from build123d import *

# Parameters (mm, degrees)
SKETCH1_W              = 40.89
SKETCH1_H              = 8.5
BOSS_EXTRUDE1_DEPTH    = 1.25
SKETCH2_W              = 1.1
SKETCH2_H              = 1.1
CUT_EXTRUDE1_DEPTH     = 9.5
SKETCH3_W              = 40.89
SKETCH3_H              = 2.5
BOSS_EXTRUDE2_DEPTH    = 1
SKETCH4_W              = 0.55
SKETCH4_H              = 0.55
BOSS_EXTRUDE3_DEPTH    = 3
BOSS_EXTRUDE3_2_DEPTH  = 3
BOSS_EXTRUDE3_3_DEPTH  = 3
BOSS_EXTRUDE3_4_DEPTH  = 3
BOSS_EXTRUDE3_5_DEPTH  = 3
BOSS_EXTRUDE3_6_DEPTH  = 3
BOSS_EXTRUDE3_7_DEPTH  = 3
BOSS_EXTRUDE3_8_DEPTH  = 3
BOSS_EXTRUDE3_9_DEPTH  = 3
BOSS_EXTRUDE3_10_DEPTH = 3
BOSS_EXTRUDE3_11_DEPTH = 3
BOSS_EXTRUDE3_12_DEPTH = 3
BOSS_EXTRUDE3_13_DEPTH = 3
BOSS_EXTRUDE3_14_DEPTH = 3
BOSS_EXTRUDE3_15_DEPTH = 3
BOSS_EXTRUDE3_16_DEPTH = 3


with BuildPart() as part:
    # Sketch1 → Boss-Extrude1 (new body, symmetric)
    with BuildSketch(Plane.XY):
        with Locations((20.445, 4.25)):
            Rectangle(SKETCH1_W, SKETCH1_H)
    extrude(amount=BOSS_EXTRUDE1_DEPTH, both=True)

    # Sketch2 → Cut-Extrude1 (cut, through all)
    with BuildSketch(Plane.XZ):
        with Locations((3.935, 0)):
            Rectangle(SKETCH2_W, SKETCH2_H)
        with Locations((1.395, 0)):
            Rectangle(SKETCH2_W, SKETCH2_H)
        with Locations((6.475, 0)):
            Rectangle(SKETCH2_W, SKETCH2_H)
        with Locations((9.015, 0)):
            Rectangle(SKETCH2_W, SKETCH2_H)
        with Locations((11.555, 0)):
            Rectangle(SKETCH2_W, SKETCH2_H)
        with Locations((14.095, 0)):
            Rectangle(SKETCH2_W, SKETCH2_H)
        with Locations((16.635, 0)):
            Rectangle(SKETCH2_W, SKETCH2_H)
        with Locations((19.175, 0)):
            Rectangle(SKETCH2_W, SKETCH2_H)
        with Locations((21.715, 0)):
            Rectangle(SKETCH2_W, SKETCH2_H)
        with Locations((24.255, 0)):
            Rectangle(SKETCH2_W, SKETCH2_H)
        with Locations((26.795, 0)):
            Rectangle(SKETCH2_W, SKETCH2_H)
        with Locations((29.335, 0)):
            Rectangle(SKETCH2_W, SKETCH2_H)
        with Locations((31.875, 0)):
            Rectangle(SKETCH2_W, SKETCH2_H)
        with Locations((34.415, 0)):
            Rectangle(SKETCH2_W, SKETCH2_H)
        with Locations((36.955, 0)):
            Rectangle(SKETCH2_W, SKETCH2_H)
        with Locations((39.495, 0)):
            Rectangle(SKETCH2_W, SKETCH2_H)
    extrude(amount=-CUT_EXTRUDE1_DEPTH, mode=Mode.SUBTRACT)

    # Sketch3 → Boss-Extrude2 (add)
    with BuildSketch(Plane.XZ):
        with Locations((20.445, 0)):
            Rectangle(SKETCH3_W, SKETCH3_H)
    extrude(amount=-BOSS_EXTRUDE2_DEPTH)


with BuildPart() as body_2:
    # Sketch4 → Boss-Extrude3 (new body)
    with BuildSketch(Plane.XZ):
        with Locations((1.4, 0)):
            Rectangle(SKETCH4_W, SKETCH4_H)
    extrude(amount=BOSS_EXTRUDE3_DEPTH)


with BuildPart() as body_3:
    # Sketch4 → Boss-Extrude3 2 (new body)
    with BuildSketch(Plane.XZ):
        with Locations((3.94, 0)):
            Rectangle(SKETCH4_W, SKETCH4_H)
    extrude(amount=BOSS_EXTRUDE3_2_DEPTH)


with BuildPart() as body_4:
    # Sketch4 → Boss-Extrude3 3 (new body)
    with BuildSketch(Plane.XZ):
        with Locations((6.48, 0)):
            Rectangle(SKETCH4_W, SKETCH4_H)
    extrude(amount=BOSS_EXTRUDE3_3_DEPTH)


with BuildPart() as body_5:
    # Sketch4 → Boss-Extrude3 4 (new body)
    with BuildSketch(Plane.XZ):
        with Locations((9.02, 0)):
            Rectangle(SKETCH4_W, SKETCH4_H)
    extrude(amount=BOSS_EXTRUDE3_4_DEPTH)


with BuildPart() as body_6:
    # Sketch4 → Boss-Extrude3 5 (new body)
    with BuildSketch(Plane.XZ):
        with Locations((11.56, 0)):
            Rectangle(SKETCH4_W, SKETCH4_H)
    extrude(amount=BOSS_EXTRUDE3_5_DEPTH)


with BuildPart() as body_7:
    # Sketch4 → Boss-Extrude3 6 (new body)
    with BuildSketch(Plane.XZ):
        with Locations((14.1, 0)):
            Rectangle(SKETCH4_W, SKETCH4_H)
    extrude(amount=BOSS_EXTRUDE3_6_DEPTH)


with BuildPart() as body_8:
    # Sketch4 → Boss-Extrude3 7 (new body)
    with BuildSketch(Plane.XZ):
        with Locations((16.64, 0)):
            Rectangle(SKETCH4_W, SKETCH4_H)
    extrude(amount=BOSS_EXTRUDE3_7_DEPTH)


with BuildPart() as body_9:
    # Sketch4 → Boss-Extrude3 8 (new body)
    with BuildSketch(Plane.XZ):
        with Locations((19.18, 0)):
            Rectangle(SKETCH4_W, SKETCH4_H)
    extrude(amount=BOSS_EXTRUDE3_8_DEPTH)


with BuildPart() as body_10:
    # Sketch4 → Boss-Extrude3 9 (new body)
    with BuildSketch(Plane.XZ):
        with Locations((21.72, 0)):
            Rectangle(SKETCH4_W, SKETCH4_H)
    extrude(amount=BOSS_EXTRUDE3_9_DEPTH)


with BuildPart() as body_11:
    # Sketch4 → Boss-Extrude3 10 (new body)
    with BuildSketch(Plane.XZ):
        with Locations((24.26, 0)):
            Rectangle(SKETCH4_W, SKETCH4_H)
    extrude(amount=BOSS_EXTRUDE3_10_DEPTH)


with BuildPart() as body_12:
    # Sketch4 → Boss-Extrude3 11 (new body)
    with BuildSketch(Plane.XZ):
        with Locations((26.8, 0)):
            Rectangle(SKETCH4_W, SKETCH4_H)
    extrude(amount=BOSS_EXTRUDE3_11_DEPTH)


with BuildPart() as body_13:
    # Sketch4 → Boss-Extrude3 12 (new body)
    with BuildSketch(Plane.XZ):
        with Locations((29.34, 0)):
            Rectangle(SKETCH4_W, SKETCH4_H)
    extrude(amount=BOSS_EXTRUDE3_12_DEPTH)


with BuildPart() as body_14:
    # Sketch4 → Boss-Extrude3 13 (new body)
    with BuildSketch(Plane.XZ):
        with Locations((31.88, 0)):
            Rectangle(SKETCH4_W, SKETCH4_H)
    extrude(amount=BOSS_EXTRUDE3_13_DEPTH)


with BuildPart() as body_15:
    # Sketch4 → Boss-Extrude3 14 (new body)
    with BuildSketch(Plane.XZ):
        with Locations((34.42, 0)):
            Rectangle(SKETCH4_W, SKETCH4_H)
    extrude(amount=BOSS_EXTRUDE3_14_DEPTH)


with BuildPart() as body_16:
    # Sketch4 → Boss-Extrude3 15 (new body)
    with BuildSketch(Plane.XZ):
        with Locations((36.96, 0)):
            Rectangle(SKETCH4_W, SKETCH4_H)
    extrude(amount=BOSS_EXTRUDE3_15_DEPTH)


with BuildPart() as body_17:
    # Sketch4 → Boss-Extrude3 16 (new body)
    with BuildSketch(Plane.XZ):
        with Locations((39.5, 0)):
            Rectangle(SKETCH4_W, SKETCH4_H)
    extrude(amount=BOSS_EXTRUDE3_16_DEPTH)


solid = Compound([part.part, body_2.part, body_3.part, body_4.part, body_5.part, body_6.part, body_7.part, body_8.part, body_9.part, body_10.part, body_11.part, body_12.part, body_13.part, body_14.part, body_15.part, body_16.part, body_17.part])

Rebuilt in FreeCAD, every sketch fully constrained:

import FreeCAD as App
import Part
import Sketcher


def add_polygon(sketch, points):
    """Adds a closed chain of lines whose ends are joined by coincident constraints."""
    first, n = sketch.GeometryCount, len(points)
    for a, b in zip(points, points[1:] + points[:1]):
        sketch.addGeometry(Part.LineSegment(App.Vector(*a, 0), App.Vector(*b, 0)), False)
    for i in range(n):
        sketch.addConstraint(Sketcher.Constraint("Coincident", first + i, 2, first + (i + 1) % n, 1))

doc = App.newDocument("Part")
body = doc.addObject("PartDesign::Body", "Body")

# Sketch on XY plane
sketch1 = doc.addObject("Sketcher::SketchObject", "Sketch")
body.addObject(sketch1)
sketch1.AttachmentSupport = (doc.XY_Plane, [""])
sketch1.MapMode = "FlatFace"
add_polygon(sketch1, [(0, 8), (0, 0), (41, 0), (41, 8)])  # lines 0-3
sketch1.addConstraint(Sketcher.Constraint("Vertical", 0))
sketch1.addConstraint(Sketcher.Constraint("Horizontal", 1))
sketch1.addConstraint(Sketcher.Constraint("Vertical", 2))
sketch1.addConstraint(Sketcher.Constraint("Horizontal", 3))
sketch1.addConstraint(Sketcher.Constraint("Coincident", 0, 2, -1, 1))
sketch1.addConstraint(Sketcher.Constraint("DistanceY", 0, 2, 0, 1, 8.5))
sketch1.addConstraint(Sketcher.Constraint("DistanceX", 1, 1, 1, 2, 40.89))
pad1 = doc.addObject("PartDesign::Pad", "Pad")
body.addObject(pad1)
pad1.Profile = sketch1
pad1.Length = 2.5
pad1.Midplane = True

# Sketch on XZ plane
sketch2 = doc.addObject("Sketcher::SketchObject", "Sketch001")
body.addObject(sketch2)
sketch2.AttachmentSupport = (doc.XZ_Plane, [""])
sketch2.MapMode = "FlatFace"
add_polygon(sketch2, [(3.4, 0.6), (3.4, -0.6), (4.5, -0.6), (4.5, 0.6)])  # lines 0-3
add_polygon(sketch2, [(0.8, 0.6), (0.8, -0.6), (1.9, -0.6), (1.9, 0.6)])  # lines 4-7
add_polygon(sketch2, [(5.9, 0.6), (5.9, -0.6), (7, -0.6), (7, 0.6)])  # lines 8-11
add_polygon(sketch2, [(8.5, 0.6), (8.5, -0.6), (9.6, -0.6), (9.6, 0.6)])  # lines 12-15
add_polygon(sketch2, [(11, 0.6), (11, -0.6), (12.1, -0.6), (12.1, 0.6)])  # lines 16-19
add_polygon(sketch2, [(13.5, 0.6), (13.5, -0.6), (14.6, -0.6), (14.6, 0.6)])  # lines 20-23
add_polygon(sketch2, [(16.1, 0.6), (16.1, -0.6), (17.2, -0.6), (17.2, 0.6)])  # lines 24-27
add_polygon(sketch2, [(18.6, 0.6), (18.6, -0.6), (19.7, -0.6), (19.7, 0.6)])  # lines 28-31
add_polygon(sketch2, [(21.2, 0.6), (21.2, -0.6), (22.3, -0.6), (22.3, 0.6)])  # lines 32-35
add_polygon(sketch2, [(23.7, 0.6), (23.7, -0.6), (24.8, -0.6), (24.8, 0.6)])  # lines 36-39
add_polygon(sketch2, [(26.2, 0.6), (26.2, -0.6), (27.3, -0.6), (27.3, 0.6)])  # lines 40-43
add_polygon(sketch2, [(28.8, 0.6), (28.8, -0.6), (29.9, -0.6), (29.9, 0.6)])  # lines 44-47
add_polygon(sketch2, [(31.3, 0.6), (31.3, -0.6), (32.4, -0.6), (32.4, 0.6)])  # lines 48-51
add_polygon(sketch2, [(33.9, 0.6), (33.9, -0.6), (35, -0.6), (35, 0.6)])  # lines 52-55
add_polygon(sketch2, [(36.4, 0.6), (36.4, -0.6), (37.5, -0.6), (37.5, 0.6)])  # lines 56-59
add_polygon(sketch2, [(38.9, 0.6), (38.9, -0.6), (40, -0.6), (40, 0.6)])  # lines 60-63
sketch2.addConstraint(Sketcher.Constraint("Vertical", 0))
sketch2.addConstraint(Sketcher.Constraint("Horizontal", 1))
sketch2.addConstraint(Sketcher.Constraint("Vertical", 2))
sketch2.addConstraint(Sketcher.Constraint("Horizontal", 3))
sketch2.addConstraint(Sketcher.Constraint("Vertical", 4))
sketch2.addConstraint(Sketcher.Constraint("Horizontal", 5))
sketch2.addConstraint(Sketcher.Constraint("Vertical", 6))
sketch2.addConstraint(Sketcher.Constraint("Horizontal", 7))
sketch2.addConstraint(Sketcher.Constraint("Vertical", 8))
sketch2.addConstraint(Sketcher.Constraint("Horizontal", 9))
sketch2.addConstraint(Sketcher.Constraint("Vertical", 10))
sketch2.addConstraint(Sketcher.Constraint("Horizontal", 11))
sketch2.addConstraint(Sketcher.Constraint("Vertical", 12))
sketch2.addConstraint(Sketcher.Constraint("Horizontal", 13))
sketch2.addConstraint(Sketcher.Constraint("Vertical", 14))
sketch2.addConstraint(Sketcher.Constraint("Horizontal", 15))
sketch2.addConstraint(Sketcher.Constraint("Vertical", 16))
sketch2.addConstraint(Sketcher.Constraint("Horizontal", 17))
sketch2.addConstraint(Sketcher.Constraint("Vertical", 18))
sketch2.addConstraint(Sketcher.Constraint("Horizontal", 19))
sketch2.addConstraint(Sketcher.Constraint("Vertical", 20))
sketch2.addConstraint(Sketcher.Constraint("Horizontal", 21))
sketch2.addConstraint(Sketcher.Constraint("Vertical", 22))
sketch2.addConstraint(Sketcher.Constraint("Horizontal", 23))
sketch2.addConstraint(Sketcher.Constraint("Vertical", 24))
sketch2.addConstraint(Sketcher.Constraint("Horizontal", 25))
sketch2.addConstraint(Sketcher.Constraint("Vertical", 26))
sketch2.addConstraint(Sketcher.Constraint("Horizontal", 27))
sketch2.addConstraint(Sketcher.Constraint("Vertical", 28))
sketch2.addConstraint(Sketcher.Constraint("Horizontal", 29))
sketch2.addConstraint(Sketcher.Constraint("Vertical", 30))
sketch2.addConstraint(Sketcher.Constraint("Horizontal", 31))
sketch2.addConstraint(Sketcher.Constraint("Vertical", 32))
sketch2.addConstraint(Sketcher.Constraint("Horizontal", 33))
sketch2.addConstraint(Sketcher.Constraint("Vertical", 34))
sketch2.addConstraint(Sketcher.Constraint("Horizontal", 35))
sketch2.addConstraint(Sketcher.Constraint("Vertical", 36))
sketch2.addConstraint(Sketcher.Constraint("Horizontal", 37))
sketch2.addConstraint(Sketcher.Constraint("Vertical", 38))
sketch2.addConstraint(Sketcher.Constraint("Horizontal", 39))
sketch2.addConstraint(Sketcher.Constraint("Vertical", 40))
sketch2.addConstraint(Sketcher.Constraint("Horizontal", 41))
sketch2.addConstraint(Sketcher.Constraint("Vertical", 42))
sketch2.addConstraint(Sketcher.Constraint("Horizontal", 43))
sketch2.addConstraint(Sketcher.Constraint("Vertical", 44))
sketch2.addConstraint(Sketcher.Constraint("Horizontal", 45))
sketch2.addConstraint(Sketcher.Constraint("Vertical", 46))
sketch2.addConstraint(Sketcher.Constraint("Horizontal", 47))
sketch2.addConstraint(Sketcher.Constraint("Vertical", 48))
sketch2.addConstraint(Sketcher.Constraint("Horizontal", 49))
sketch2.addConstraint(Sketcher.Constraint("Vertical", 50))
sketch2.addConstraint(Sketcher.Constraint("Horizontal", 51))
sketch2.addConstraint(Sketcher.Constraint("Vertical", 52))
sketch2.addConstraint(Sketcher.Constraint("Horizontal", 53))
sketch2.addConstraint(Sketcher.Constraint("Vertical", 54))
sketch2.addConstraint(Sketcher.Constraint("Horizontal", 55))
sketch2.addConstraint(Sketcher.Constraint("Vertical", 56))
sketch2.addConstraint(Sketcher.Constraint("Horizontal", 57))
sketch2.addConstraint(Sketcher.Constraint("Vertical", 58))
sketch2.addConstraint(Sketcher.Constraint("Horizontal", 59))
sketch2.addConstraint(Sketcher.Constraint("Vertical", 60))
sketch2.addConstraint(Sketcher.Constraint("Horizontal", 61))
sketch2.addConstraint(Sketcher.Constraint("Vertical", 62))
sketch2.addConstraint(Sketcher.Constraint("Horizontal", 63))
sketch2.addConstraint(Sketcher.Constraint("Horizontal", 1, 2, 4, 2))
sketch2.addConstraint(Sketcher.Constraint("Horizontal", 3, 2, 6, 2))
sketch2.addConstraint(Sketcher.Constraint("Horizontal", 5, 2, 8, 2))
sketch2.addConstraint(Sketcher.Constraint("Horizontal", 7, 2, 10, 2))
sketch2.addConstraint(Sketcher.Constraint("Horizontal", 9, 2, 12, 2))
sketch2.addConstraint(Sketcher.Constraint("Horizontal", 11, 2, 14, 2))
sketch2.addConstraint(Sketcher.Constraint("Horizontal", 13, 2, 16, 2))
sketch2.addConstraint(Sketcher.Constraint("Horizontal", 15, 2, 18, 2))
sketch2.addConstraint(Sketcher.Constraint("Horizontal", 17, 2, 20, 2))
sketch2.addConstraint(Sketcher.Constraint("Horizontal", 19, 2, 22, 2))
sketch2.addConstraint(Sketcher.Constraint("Horizontal", 21, 2, 24, 2))
sketch2.addConstraint(Sketcher.Constraint("Horizontal", 23, 2, 26, 2))
sketch2.addConstraint(Sketcher.Constraint("Horizontal", 25, 2, 28, 2))
sketch2.addConstraint(Sketcher.Constraint("Horizontal", 27, 2, 30, 2))
sketch2.addConstraint(Sketcher.Constraint("Horizontal", 29, 2, 32, 2))
sketch2.addConstraint(Sketcher.Constraint("Horizontal", 31, 2, 34, 2))
sketch2.addConstraint(Sketcher.Constraint("Horizontal", 33, 2, 36, 2))
sketch2.addConstraint(Sketcher.Constraint("Horizontal", 35, 2, 38, 2))
sketch2.addConstraint(Sketcher.Constraint("Horizontal", 37, 2, 40, 2))
sketch2.addConstraint(Sketcher.Constraint("Horizontal", 39, 2, 42, 2))
sketch2.addConstraint(Sketcher.Constraint("Horizontal", 41, 2, 44, 2))
sketch2.addConstraint(Sketcher.Constraint("Horizontal", 43, 2, 46, 2))
sketch2.addConstraint(Sketcher.Constraint("Horizontal", 45, 2, 48, 2))
sketch2.addConstraint(Sketcher.Constraint("Horizontal", 47, 2, 50, 2))
sketch2.addConstraint(Sketcher.Constraint("Horizontal", 49, 2, 52, 2))
sketch2.addConstraint(Sketcher.Constraint("Horizontal", 51, 2, 54, 2))
sketch2.addConstraint(Sketcher.Constraint("Horizontal", 53, 2, 56, 2))
sketch2.addConstraint(Sketcher.Constraint("Horizontal", 55, 2, 58, 2))
sketch2.addConstraint(Sketcher.Constraint("Horizontal", 57, 2, 60, 2))
sketch2.addConstraint(Sketcher.Constraint("Horizontal", 59, 2, 62, 2))
sketch2.addConstraint(Sketcher.Constraint("Equal", 3, 5))
sketch2.addConstraint(Sketcher.Constraint("Equal", 7, 9))
sketch2.addConstraint(Sketcher.Constraint("Equal", 11, 13))
sketch2.addConstraint(Sketcher.Constraint("Equal", 15, 17))
sketch2.addConstraint(Sketcher.Constraint("Equal", 19, 21))
sketch2.addConstraint(Sketcher.Constraint("Equal", 23, 25))
sketch2.addConstraint(Sketcher.Constraint("Equal", 27, 29))
sketch2.addConstraint(Sketcher.Constraint("Equal", 31, 33))
sketch2.addConstraint(Sketcher.Constraint("Equal", 35, 37))
sketch2.addConstraint(Sketcher.Constraint("Equal", 39, 41))
sketch2.addConstraint(Sketcher.Constraint("Equal", 43, 45))
sketch2.addConstraint(Sketcher.Constraint("Equal", 47, 49))
sketch2.addConstraint(Sketcher.Constraint("Equal", 51, 53))
sketch2.addConstraint(Sketcher.Constraint("Equal", 55, 57))
sketch2.addConstraint(Sketcher.Constraint("Equal", 59, 61))
sketch2.addConstraint(Sketcher.Constraint("Equal", 63, 0))
sketch2.addConstraint(Sketcher.Constraint("DistanceX", 1, 1, 1, 2, 1.1))
sketch2.addConstraint(Sketcher.Constraint("DistanceY", 0, 2, -1, 1, 0.55))
sketch2.addConstraint(Sketcher.Constraint("DistanceX", -1, 1, 0, 2, 3.385))
sketch2.addConstraint(Sketcher.Constraint("DistanceX", -1, 1, 4, 2, 0.845))
sketch2.addConstraint(Sketcher.Constraint("DistanceX", -1, 1, 8, 2, 5.925))
sketch2.addConstraint(Sketcher.Constraint("DistanceX", -1, 1, 12, 2, 8.465))
sketch2.addConstraint(Sketcher.Constraint("DistanceX", -1, 1, 16, 2, 11.005))
sketch2.addConstraint(Sketcher.Constraint("DistanceX", -1, 1, 20, 2, 13.545))
sketch2.addConstraint(Sketcher.Constraint("DistanceX", -1, 1, 24, 2, 16.085))
sketch2.addConstraint(Sketcher.Constraint("DistanceX", -1, 1, 28, 2, 18.625))
sketch2.addConstraint(Sketcher.Constraint("DistanceX", -1, 1, 32, 2, 21.165))
sketch2.addConstraint(Sketcher.Constraint("DistanceX", -1, 1, 36, 2, 23.705))
sketch2.addConstraint(Sketcher.Constraint("DistanceX", -1, 1, 40, 2, 26.245))
sketch2.addConstraint(Sketcher.Constraint("DistanceX", -1, 1, 44, 2, 28.785))
sketch2.addConstraint(Sketcher.Constraint("DistanceX", -1, 1, 48, 2, 31.325))
sketch2.addConstraint(Sketcher.Constraint("DistanceX", -1, 1, 52, 2, 33.865))
sketch2.addConstraint(Sketcher.Constraint("DistanceX", -1, 1, 56, 2, 36.405))
sketch2.addConstraint(Sketcher.Constraint("DistanceX", -1, 1, 60, 2, 38.945))
pocket1 = doc.addObject("PartDesign::Pocket", "Pocket")
body.addObject(pocket1)
pocket1.Profile = sketch2
pocket1.Type = "ThroughAll"

# Sketch on XZ plane
sketch3 = doc.addObject("Sketcher::SketchObject", "Sketch002")
body.addObject(sketch3)
sketch3.AttachmentSupport = (doc.XZ_Plane, [""])
sketch3.MapMode = "FlatFace"
add_polygon(sketch3, [(0, 1.2), (0, -1.2), (40.9, -1.2), (40.9, 1.2)])  # lines 0-3
sketch3.addConstraint(Sketcher.Constraint("Vertical", 0))
sketch3.addConstraint(Sketcher.Constraint("Horizontal", 1))
sketch3.addConstraint(Sketcher.Constraint("Vertical", 2))
sketch3.addConstraint(Sketcher.Constraint("Horizontal", 3))
sketch3.addConstraint(Sketcher.Constraint("Symmetric", 0, 2, 3, 2, -1, 1))
sketch3.addConstraint(Sketcher.Constraint("DistanceY", 0, 2, 0, 1, 2.5))
sketch3.addConstraint(Sketcher.Constraint("DistanceX", 1, 1, 1, 2, 40.89))
pad2 = doc.addObject("PartDesign::Pad", "Pad001")
body.addObject(pad2)
pad2.Profile = sketch3
pad2.Length = 1
pad2.Reversed = True
body2 = doc.addObject("PartDesign::Body", "Body001")

# Sketch on XZ plane
sketch4 = doc.addObject("Sketcher::SketchObject", "Sketch003")
body2.addObject(sketch4)
sketch4.AttachmentSupport = (doc.getObject("XZ_Plane001"), [""])
sketch4.MapMode = "FlatFace"
add_polygon(sketch4, [(1.1, 0.3), (1.1, -0.3), (1.7, -0.3), (1.7, 0.3)])  # lines 0-3
sketch4.addConstraint(Sketcher.Constraint("Vertical", 0))
sketch4.addConstraint(Sketcher.Constraint("Horizontal", 1))
sketch4.addConstraint(Sketcher.Constraint("Vertical", 2))
sketch4.addConstraint(Sketcher.Constraint("Horizontal", 3))
sketch4.addConstraint(Sketcher.Constraint("Equal", 3, 0))
sketch4.addConstraint(Sketcher.Constraint("DistanceX", 1, 1, 1, 2, 0.55))
sketch4.addConstraint(Sketcher.Constraint("DistanceX", -1, 1, 0, 2, 1.125))
sketch4.addConstraint(Sketcher.Constraint("DistanceY", 0, 2, -1, 1, 0.275))
pad3 = doc.addObject("PartDesign::Pad", "Pad002")
body2.addObject(pad3)
pad3.Profile = sketch4
pad3.Length = 3
body3 = doc.addObject("PartDesign::Body", "Body002")

# Sketch on XZ plane
sketch5 = doc.addObject("Sketcher::SketchObject", "Sketch004")
body3.addObject(sketch5)
sketch5.AttachmentSupport = (doc.getObject("XZ_Plane002"), [""])
sketch5.MapMode = "FlatFace"
add_polygon(sketch5, [(3.7, 0.3), (3.7, -0.3), (4.2, -0.3), (4.2, 0.3)])  # lines 0-3
sketch5.addConstraint(Sketcher.Constraint("Vertical", 0))
sketch5.addConstraint(Sketcher.Constraint("Horizontal", 1))
sketch5.addConstraint(Sketcher.Constraint("Vertical", 2))
sketch5.addConstraint(Sketcher.Constraint("Horizontal", 3))
sketch5.addConstraint(Sketcher.Constraint("Equal", 3, 0))
sketch5.addConstraint(Sketcher.Constraint("DistanceX", 1, 1, 1, 2, 0.55))
sketch5.addConstraint(Sketcher.Constraint("DistanceX", -1, 1, 0, 2, 3.665))
sketch5.addConstraint(Sketcher.Constraint("DistanceY", 0, 2, -1, 1, 0.275))
pad4 = doc.addObject("PartDesign::Pad", "Pad003")
body3.addObject(pad4)
pad4.Profile = sketch5
pad4.Length = 3
body4 = doc.addObject("PartDesign::Body", "Body003")

# Sketch on XZ plane
sketch6 = doc.addObject("Sketcher::SketchObject", "Sketch005")
body4.addObject(sketch6)
sketch6.AttachmentSupport = (doc.getObject("XZ_Plane003"), [""])
sketch6.MapMode = "FlatFace"
add_polygon(sketch6, [(6.2, 0.3), (6.2, -0.3), (6.8, -0.3), (6.8, 0.3)])  # lines 0-3
sketch6.addConstraint(Sketcher.Constraint("Vertical", 0))
sketch6.addConstraint(Sketcher.Constraint("Horizontal", 1))
sketch6.addConstraint(Sketcher.Constraint("Vertical", 2))
sketch6.addConstraint(Sketcher.Constraint("Horizontal", 3))
sketch6.addConstraint(Sketcher.Constraint("Equal", 3, 0))
sketch6.addConstraint(Sketcher.Constraint("DistanceX", 1, 1, 1, 2, 0.55))
sketch6.addConstraint(Sketcher.Constraint("DistanceX", -1, 1, 0, 2, 6.205))
sketch6.addConstraint(Sketcher.Constraint("DistanceY", 0, 2, -1, 1, 0.275))
pad5 = doc.addObject("PartDesign::Pad", "Pad004")
body4.addObject(pad5)
pad5.Profile = sketch6
pad5.Length = 3
body5 = doc.addObject("PartDesign::Body", "Body004")

# Sketch on XZ plane
sketch7 = doc.addObject("Sketcher::SketchObject", "Sketch006")
body5.addObject(sketch7)
sketch7.AttachmentSupport = (doc.getObject("XZ_Plane004"), [""])
sketch7.MapMode = "FlatFace"
add_polygon(sketch7, [(8.7, 0.3), (8.7, -0.3), (9.3, -0.3), (9.3, 0.3)])  # lines 0-3
sketch7.addConstraint(Sketcher.Constraint("Vertical", 0))
sketch7.addConstraint(Sketcher.Constraint("Horizontal", 1))
sketch7.addConstraint(Sketcher.Constraint("Vertical", 2))
sketch7.addConstraint(Sketcher.Constraint("Horizontal", 3))
sketch7.addConstraint(Sketcher.Constraint("Equal", 3, 0))
sketch7.addConstraint(Sketcher.Constraint("DistanceX", 1, 1, 1, 2, 0.55))
sketch7.addConstraint(Sketcher.Constraint("DistanceX", -1, 1, 0, 2, 8.745))
sketch7.addConstraint(Sketcher.Constraint("DistanceY", 0, 2, -1, 1, 0.275))
pad6 = doc.addObject("PartDesign::Pad", "Pad005")
body5.addObject(pad6)
pad6.Profile = sketch7
pad6.Length = 3
body6 = doc.addObject("PartDesign::Body", "Body005")

# Sketch on XZ plane
sketch8 = doc.addObject("Sketcher::SketchObject", "Sketch007")
body6.addObject(sketch8)
sketch8.AttachmentSupport = (doc.getObject("XZ_Plane005"), [""])
sketch8.MapMode = "FlatFace"
add_polygon(sketch8, [(11.3, 0.3), (11.3, -0.3), (11.8, -0.3), (11.8, 0.3)])  # lines 0-3
sketch8.addConstraint(Sketcher.Constraint("Vertical", 0))
sketch8.addConstraint(Sketcher.Constraint("Horizontal", 1))
sketch8.addConstraint(Sketcher.Constraint("Vertical", 2))
sketch8.addConstraint(Sketcher.Constraint("Horizontal", 3))
sketch8.addConstraint(Sketcher.Constraint("Equal", 3, 0))
sketch8.addConstraint(Sketcher.Constraint("DistanceX", 1, 1, 1, 2, 0.55))
sketch8.addConstraint(Sketcher.Constraint("DistanceX", -1, 1, 0, 2, 11.285))
sketch8.addConstraint(Sketcher.Constraint("DistanceY", 0, 2, -1, 1, 0.275))
pad7 = doc.addObject("PartDesign::Pad", "Pad006")
body6.addObject(pad7)
pad7.Profile = sketch8
pad7.Length = 3
body7 = doc.addObject("PartDesign::Body", "Body006")

# Sketch on XZ plane
sketch9 = doc.addObject("Sketcher::SketchObject", "Sketch008")
body7.addObject(sketch9)
sketch9.AttachmentSupport = (doc.getObject("XZ_Plane006"), [""])
sketch9.MapMode = "FlatFace"
add_polygon(sketch9, [(13.8, 0.3), (13.8, -0.3), (14.4, -0.3), (14.4, 0.3)])  # lines 0-3
sketch9.addConstraint(Sketcher.Constraint("Vertical", 0))
sketch9.addConstraint(Sketcher.Constraint("Horizontal", 1))
sketch9.addConstraint(Sketcher.Constraint("Vertical", 2))
sketch9.addConstraint(Sketcher.Constraint("Horizontal", 3))
sketch9.addConstraint(Sketcher.Constraint("Equal", 3, 0))
sketch9.addConstraint(Sketcher.Constraint("DistanceX", 1, 1, 1, 2, 0.55))
sketch9.addConstraint(Sketcher.Constraint("DistanceX", -1, 1, 0, 2, 13.825))
sketch9.addConstraint(Sketcher.Constraint("DistanceY", 0, 2, -1, 1, 0.275))
pad8 = doc.addObject("PartDesign::Pad", "Pad007")
body7.addObject(pad8)
pad8.Profile = sketch9
pad8.Length = 3
body8 = doc.addObject("PartDesign::Body", "Body007")

# Sketch on XZ plane
sketch10 = doc.addObject("Sketcher::SketchObject", "Sketch009")
body8.addObject(sketch10)
sketch10.AttachmentSupport = (doc.getObject("XZ_Plane007"), [""])
sketch10.MapMode = "FlatFace"
add_polygon(sketch10, [(16.4, 0.3), (16.4, -0.3), (16.9, -0.3), (16.9, 0.3)])  # lines 0-3
sketch10.addConstraint(Sketcher.Constraint("Vertical", 0))
sketch10.addConstraint(Sketcher.Constraint("Horizontal", 1))
sketch10.addConstraint(Sketcher.Constraint("Vertical", 2))
sketch10.addConstraint(Sketcher.Constraint("Horizontal", 3))
sketch10.addConstraint(Sketcher.Constraint("Equal", 3, 0))
sketch10.addConstraint(Sketcher.Constraint("DistanceX", 1, 1, 1, 2, 0.55))
sketch10.addConstraint(Sketcher.Constraint("DistanceX", -1, 1, 0, 2, 16.365))
sketch10.addConstraint(Sketcher.Constraint("DistanceY", 0, 2, -1, 1, 0.275))
pad9 = doc.addObject("PartDesign::Pad", "Pad008")
body8.addObject(pad9)
pad9.Profile = sketch10
pad9.Length = 3
body9 = doc.addObject("PartDesign::Body", "Body008")

# Sketch on XZ plane
sketch11 = doc.addObject("Sketcher::SketchObject", "Sketch010")
body9.addObject(sketch11)
sketch11.AttachmentSupport = (doc.getObject("XZ_Plane008"), [""])
sketch11.MapMode = "FlatFace"
add_polygon(sketch11, [(18.9, 0.3), (18.9, -0.3), (19.5, -0.3), (19.5, 0.3)])  # lines 0-3
sketch11.addConstraint(Sketcher.Constraint("Vertical", 0))
sketch11.addConstraint(Sketcher.Constraint("Horizontal", 1))
sketch11.addConstraint(Sketcher.Constraint("Vertical", 2))
sketch11.addConstraint(Sketcher.Constraint("Horizontal", 3))
sketch11.addConstraint(Sketcher.Constraint("Equal", 3, 0))
sketch11.addConstraint(Sketcher.Constraint("DistanceX", 1, 1, 1, 2, 0.55))
sketch11.addConstraint(Sketcher.Constraint("DistanceX", -1, 1, 0, 2, 18.905))
sketch11.addConstraint(Sketcher.Constraint("DistanceY", 0, 2, -1, 1, 0.275))
pad10 = doc.addObject("PartDesign::Pad", "Pad009")
body9.addObject(pad10)
pad10.Profile = sketch11
pad10.Length = 3
body10 = doc.addObject("PartDesign::Body", "Body009")

# Sketch on XZ plane
sketch12 = doc.addObject("Sketcher::SketchObject", "Sketch011")
body10.addObject(sketch12)
sketch12.AttachmentSupport = (doc.getObject("XZ_Plane009"), [""])
sketch12.MapMode = "FlatFace"
add_polygon(sketch12, [(21.4, 0.3), (21.4, -0.3), (22, -0.3), (22, 0.3)])  # lines 0-3
sketch12.addConstraint(Sketcher.Constraint("Vertical", 0))
sketch12.addConstraint(Sketcher.Constraint("Horizontal", 1))
sketch12.addConstraint(Sketcher.Constraint("Vertical", 2))
sketch12.addConstraint(Sketcher.Constraint("Horizontal", 3))
sketch12.addConstraint(Sketcher.Constraint("Equal", 3, 0))
sketch12.addConstraint(Sketcher.Constraint("DistanceX", 1, 1, 1, 2, 0.55))
sketch12.addConstraint(Sketcher.Constraint("DistanceX", -1, 1, 0, 2, 21.445))
sketch12.addConstraint(Sketcher.Constraint("DistanceY", 0, 2, -1, 1, 0.275))
pad11 = doc.addObject("PartDesign::Pad", "Pad010")
body10.addObject(pad11)
pad11.Profile = sketch12
pad11.Length = 3
body11 = doc.addObject("PartDesign::Body", "Body010")

# Sketch on XZ plane
sketch13 = doc.addObject("Sketcher::SketchObject", "Sketch012")
body11.addObject(sketch13)
sketch13.AttachmentSupport = (doc.getObject("XZ_Plane010"), [""])
sketch13.MapMode = "FlatFace"
add_polygon(sketch13, [(24, 0.3), (24, -0.3), (24.5, -0.3), (24.5, 0.3)])  # lines 0-3
sketch13.addConstraint(Sketcher.Constraint("Vertical", 0))
sketch13.addConstraint(Sketcher.Constraint("Horizontal", 1))
sketch13.addConstraint(Sketcher.Constraint("Vertical", 2))
sketch13.addConstraint(Sketcher.Constraint("Horizontal", 3))
sketch13.addConstraint(Sketcher.Constraint("Equal", 3, 0))
sketch13.addConstraint(Sketcher.Constraint("DistanceX", 1, 1, 1, 2, 0.55))
sketch13.addConstraint(Sketcher.Constraint("DistanceX", -1, 1, 0, 2, 23.985))
sketch13.addConstraint(Sketcher.Constraint("DistanceY", 0, 2, -1, 1, 0.275))
pad12 = doc.addObject("PartDesign::Pad", "Pad011")
body11.addObject(pad12)
pad12.Profile = sketch13
pad12.Length = 3
body12 = doc.addObject("PartDesign::Body", "Body011")

# Sketch on XZ plane
sketch14 = doc.addObject("Sketcher::SketchObject", "Sketch013")
body12.addObject(sketch14)
sketch14.AttachmentSupport = (doc.getObject("XZ_Plane011"), [""])
sketch14.MapMode = "FlatFace"
add_polygon(sketch14, [(26.5, 0.3), (26.5, -0.3), (27.1, -0.3), (27.1, 0.3)])  # lines 0-3
sketch14.addConstraint(Sketcher.Constraint("Vertical", 0))
sketch14.addConstraint(Sketcher.Constraint("Horizontal", 1))
sketch14.addConstraint(Sketcher.Constraint("Vertical", 2))
sketch14.addConstraint(Sketcher.Constraint("Horizontal", 3))
sketch14.addConstraint(Sketcher.Constraint("Equal", 3, 0))
sketch14.addConstraint(Sketcher.Constraint("DistanceX", 1, 1, 1, 2, 0.55))
sketch14.addConstraint(Sketcher.Constraint("DistanceX", -1, 1, 0, 2, 26.525))
sketch14.addConstraint(Sketcher.Constraint("DistanceY", 0, 2, -1, 1, 0.275))
pad13 = doc.addObject("PartDesign::Pad", "Pad012")
body12.addObject(pad13)
pad13.Profile = sketch14
pad13.Length = 3
body13 = doc.addObject("PartDesign::Body", "Body012")

# Sketch on XZ plane
sketch15 = doc.addObject("Sketcher::SketchObject", "Sketch014")
body13.addObject(sketch15)
sketch15.AttachmentSupport = (doc.getObject("XZ_Plane012"), [""])
sketch15.MapMode = "FlatFace"
add_polygon(sketch15, [(29.1, 0.3), (29.1, -0.3), (29.6, -0.3), (29.6, 0.3)])  # lines 0-3
sketch15.addConstraint(Sketcher.Constraint("Vertical", 0))
sketch15.addConstraint(Sketcher.Constraint("Horizontal", 1))
sketch15.addConstraint(Sketcher.Constraint("Vertical", 2))
sketch15.addConstraint(Sketcher.Constraint("Horizontal", 3))
sketch15.addConstraint(Sketcher.Constraint("Equal", 3, 0))
sketch15.addConstraint(Sketcher.Constraint("DistanceX", 1, 1, 1, 2, 0.55))
sketch15.addConstraint(Sketcher.Constraint("DistanceX", -1, 1, 0, 2, 29.065))
sketch15.addConstraint(Sketcher.Constraint("DistanceY", 0, 2, -1, 1, 0.275))
pad14 = doc.addObject("PartDesign::Pad", "Pad013")
body13.addObject(pad14)
pad14.Profile = sketch15
pad14.Length = 3
body14 = doc.addObject("PartDesign::Body", "Body013")

# Sketch on XZ plane
sketch16 = doc.addObject("Sketcher::SketchObject", "Sketch015")
body14.addObject(sketch16)
sketch16.AttachmentSupport = (doc.getObject("XZ_Plane013"), [""])
sketch16.MapMode = "FlatFace"
add_polygon(sketch16, [(31.6, 0.3), (31.6, -0.3), (32.2, -0.3), (32.2, 0.3)])  # lines 0-3
sketch16.addConstraint(Sketcher.Constraint("Vertical", 0))
sketch16.addConstraint(Sketcher.Constraint("Horizontal", 1))
sketch16.addConstraint(Sketcher.Constraint("Vertical", 2))
sketch16.addConstraint(Sketcher.Constraint("Horizontal", 3))
sketch16.addConstraint(Sketcher.Constraint("Equal", 3, 0))
sketch16.addConstraint(Sketcher.Constraint("DistanceX", 1, 1, 1, 2, 0.55))
sketch16.addConstraint(Sketcher.Constraint("DistanceX", -1, 1, 0, 2, 31.605))
sketch16.addConstraint(Sketcher.Constraint("DistanceY", 0, 2, -1, 1, 0.275))
pad15 = doc.addObject("PartDesign::Pad", "Pad014")
body14.addObject(pad15)
pad15.Profile = sketch16
pad15.Length = 3
body15 = doc.addObject("PartDesign::Body", "Body014")

# Sketch on XZ plane
sketch17 = doc.addObject("Sketcher::SketchObject", "Sketch016")
body15.addObject(sketch17)
sketch17.AttachmentSupport = (doc.getObject("XZ_Plane014"), [""])
sketch17.MapMode = "FlatFace"
add_polygon(sketch17, [(34.1, 0.3), (34.1, -0.3), (34.7, -0.3), (34.7, 0.3)])  # lines 0-3
sketch17.addConstraint(Sketcher.Constraint("Vertical", 0))
sketch17.addConstraint(Sketcher.Constraint("Horizontal", 1))
sketch17.addConstraint(Sketcher.Constraint("Vertical", 2))
sketch17.addConstraint(Sketcher.Constraint("Horizontal", 3))
sketch17.addConstraint(Sketcher.Constraint("Equal", 3, 0))
sketch17.addConstraint(Sketcher.Constraint("DistanceX", 1, 1, 1, 2, 0.55))
sketch17.addConstraint(Sketcher.Constraint("DistanceX", -1, 1, 0, 2, 34.145))
sketch17.addConstraint(Sketcher.Constraint("DistanceY", 0, 2, -1, 1, 0.275))
pad16 = doc.addObject("PartDesign::Pad", "Pad015")
body15.addObject(pad16)
pad16.Profile = sketch17
pad16.Length = 3
body16 = doc.addObject("PartDesign::Body", "Body015")

# Sketch on XZ plane
sketch18 = doc.addObject("Sketcher::SketchObject", "Sketch017")
body16.addObject(sketch18)
sketch18.AttachmentSupport = (doc.getObject("XZ_Plane015"), [""])
sketch18.MapMode = "FlatFace"
add_polygon(sketch18, [(36.7, 0.3), (36.7, -0.3), (37.2, -0.3), (37.2, 0.3)])  # lines 0-3
sketch18.addConstraint(Sketcher.Constraint("Vertical", 0))
sketch18.addConstraint(Sketcher.Constraint("Horizontal", 1))
sketch18.addConstraint(Sketcher.Constraint("Vertical", 2))
sketch18.addConstraint(Sketcher.Constraint("Horizontal", 3))
sketch18.addConstraint(Sketcher.Constraint("Equal", 3, 0))
sketch18.addConstraint(Sketcher.Constraint("DistanceX", 1, 1, 1, 2, 0.55))
sketch18.addConstraint(Sketcher.Constraint("DistanceX", -1, 1, 0, 2, 36.685))
sketch18.addConstraint(Sketcher.Constraint("DistanceY", 0, 2, -1, 1, 0.275))
pad17 = doc.addObject("PartDesign::Pad", "Pad016")
body16.addObject(pad17)
pad17.Profile = sketch18
pad17.Length = 3
body17 = doc.addObject("PartDesign::Body", "Body016")

# Sketch on XZ plane
sketch19 = doc.addObject("Sketcher::SketchObject", "Sketch018")
body17.addObject(sketch19)
sketch19.AttachmentSupport = (doc.getObject("XZ_Plane016"), [""])
sketch19.MapMode = "FlatFace"
add_polygon(sketch19, [(39.2, 0.3), (39.2, -0.3), (39.8, -0.3), (39.8, 0.3)])  # lines 0-3
sketch19.addConstraint(Sketcher.Constraint("Vertical", 0))
sketch19.addConstraint(Sketcher.Constraint("Horizontal", 1))
sketch19.addConstraint(Sketcher.Constraint("Vertical", 2))
sketch19.addConstraint(Sketcher.Constraint("Horizontal", 3))
sketch19.addConstraint(Sketcher.Constraint("Equal", 3, 0))
sketch19.addConstraint(Sketcher.Constraint("DistanceX", 1, 1, 1, 2, 0.55))
sketch19.addConstraint(Sketcher.Constraint("DistanceX", -1, 1, 0, 2, 39.225))
sketch19.addConstraint(Sketcher.Constraint("DistanceY", 0, 2, -1, 1, 0.275))
pad18 = doc.addObject("PartDesign::Pad", "Pad017")
body17.addObject(pad18)
pad18.Profile = sketch19
pad18.Length = 3

doc.recompute()
